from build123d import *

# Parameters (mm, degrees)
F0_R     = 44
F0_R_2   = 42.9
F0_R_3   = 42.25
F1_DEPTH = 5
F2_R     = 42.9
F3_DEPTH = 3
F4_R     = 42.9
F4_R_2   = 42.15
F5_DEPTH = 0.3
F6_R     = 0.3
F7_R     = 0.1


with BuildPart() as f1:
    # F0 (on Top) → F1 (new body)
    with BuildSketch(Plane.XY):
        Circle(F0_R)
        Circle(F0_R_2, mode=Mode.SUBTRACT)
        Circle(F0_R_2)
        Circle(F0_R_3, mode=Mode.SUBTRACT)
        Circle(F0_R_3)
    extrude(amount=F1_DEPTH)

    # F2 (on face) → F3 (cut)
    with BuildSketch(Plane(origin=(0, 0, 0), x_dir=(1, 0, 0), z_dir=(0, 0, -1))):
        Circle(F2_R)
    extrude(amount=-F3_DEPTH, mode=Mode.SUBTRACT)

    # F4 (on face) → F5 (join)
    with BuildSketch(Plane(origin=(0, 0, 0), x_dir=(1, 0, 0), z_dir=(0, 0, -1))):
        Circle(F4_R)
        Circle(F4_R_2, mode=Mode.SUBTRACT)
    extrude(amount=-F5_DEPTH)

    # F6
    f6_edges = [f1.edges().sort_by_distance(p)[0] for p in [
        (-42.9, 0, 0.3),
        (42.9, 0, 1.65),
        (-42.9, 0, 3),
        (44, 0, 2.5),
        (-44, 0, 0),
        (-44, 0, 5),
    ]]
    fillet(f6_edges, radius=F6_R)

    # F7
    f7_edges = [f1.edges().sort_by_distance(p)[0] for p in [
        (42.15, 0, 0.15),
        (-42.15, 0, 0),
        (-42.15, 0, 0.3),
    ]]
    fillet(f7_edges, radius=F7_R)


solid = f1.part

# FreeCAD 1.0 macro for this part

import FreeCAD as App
import Part
import Sketcher

V = App.Vector
Q = App.Units.Quantity


def edges_at(feature, points):
    """Names of the edges that pass closest to the given points."""
    edges = feature.Shape.Edges
    near = lambda p: min(range(len(edges)), key=lambda i: edges[i].distToShape(Part.Vertex(*p))[0])
    return sorted({f"Edge{near(p) + 1}" for p in points})

doc = App.newDocument("Part")
body = doc.addObject("PartDesign::Body", "Body")

# Sketch on XY plane
sketch1 = body.newObject("Sketcher::SketchObject", "Sketch")
sketch1.AttachmentSupport = (doc.getObject("XY_Plane"), [""])
sketch1.MapMode = "FlatFace"
sketch1.addGeometry(Part.Circle(V(0, 0, 0), V(0, 0, 1), 44), False)
sketch1.addConstraint([
    Sketcher.Constraint("Coincident", 0, 3, -1, 1),
    Sketcher.Constraint("Diameter", 0, Q("88 mm")),
])
pad1 = body.newObject("PartDesign::Pad", "Pad")
pad1.Profile = sketch1
pad1.Length = 5

# Sketch on XY plane
sketch2 = body.newObject("Sketcher::SketchObject", "Sketch001")
sketch2.AttachmentSupport = (doc.getObject("XY_Plane"), [""])
sketch2.MapMode = "FlatFace"
sketch2.addGeometry(Part.Circle(V(0, 0, 0), V(0, 0, 1), 43), False)
sketch2.addConstraint([
    Sketcher.Constraint("Coincident", 0, 3, -1, 1),
    Sketcher.Constraint("Diameter", 0, Q("85.8 mm")),
])
pocket1 = body.newObject("PartDesign::Pocket", "Pocket")
pocket1.Profile = sketch2
pocket1.Length = 3
pocket1.Reversed = True

# Sketch on XY plane
sketch3 = body.newObject("Sketcher::SketchObject", "Sketch002")
sketch3.AttachmentSupport = (doc.getObject("XY_Plane"), [""])
sketch3.MapMode = "FlatFace"
sketch3.addGeometry([
    Part.Circle(V(0, 0, 0), V(0, 0, 1), 43),
    Part.Circle(V(0, 0, 0), V(0, 0, 1), 42),
], False)
sketch3.addConstraint([
    Sketcher.Constraint("Coincident", 0, 3, -1, 1),
    Sketcher.Constraint("Coincident", 1, 3, -1, 1),
    Sketcher.Constraint("Diameter", 0, Q("85.8 mm")),
    Sketcher.Constraint("Diameter", 1, Q("84.3 mm")),
])
pad2 = body.newObject("PartDesign::Pad", "Pad001")
pad2.Profile = sketch3
pad2.Length = 0.3
doc.recompute()

fillet = body.newObject("PartDesign::Fillet", "Fillet")
fillet.Base = (pad2, edges_at(pad2, [
    (-42.9, 0, 0.3),
    (42.9, 0, 1.65),
    (-42.9, 0, 3),
    (44, 0, 2.5),
    (-44, 0, 0),
    (-44, 0, 5),
]))
fillet.Radius = 0.3
doc.recompute()

fillet2 = body.newObject("PartDesign::Fillet", "Fillet001")
fillet2.Base = (fillet, edges_at(fillet, [(42.15, 0, 0.15), (-42.15, 0, 0), (-42.15, 0, 0.3)]))
fillet2.Radius = 0.1

doc.recompute()
